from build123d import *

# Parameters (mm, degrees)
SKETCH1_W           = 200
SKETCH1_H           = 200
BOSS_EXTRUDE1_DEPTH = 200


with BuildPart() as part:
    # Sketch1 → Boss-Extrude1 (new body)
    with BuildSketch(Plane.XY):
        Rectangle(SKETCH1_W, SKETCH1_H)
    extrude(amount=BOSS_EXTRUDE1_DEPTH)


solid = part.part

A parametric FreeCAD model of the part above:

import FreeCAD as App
import Part
import Sketcher
from FreeCAD import Vector
Q = App.Units.Quantity


def add_polygon(sketch, points):
    """Adds a closed chain of lines whose ends are joined by coincident constraints."""
    first, n = sketch.GeometryCount, len(points)
    for a, b in zip(points, points[1:] + points[:1]):
        sketch.addGeometry(Part.LineSegment(App.Vector(*a, 0), App.Vector(*b, 0)), False)
    for i in range(n):
        sketch.addConstraint(Sketcher.Constraint("Coincident", first + i, 2, first + (i + 1) % n, 1))

doc = App.newDocument("Part")
params = doc.addObject("Spreadsheet::Sheet", "Params")
for row, (alias, value) in enumerate([
    ("sketch1_width", "200 mm"),
    ("pad1_length", "200 mm"),
], start=1):
    params.set(f"A{row}", alias)
    params.set(f"B{row}", "=" + value)
    params.setAlias(f"B{row}", alias)

body = doc.addObject("PartDesign::Body", "Body")

# Sketch on XY plane
sketch1 = body.newObject("Sketcher::SketchObject", "Sketch")
sketch1.AttachmentSupport = (doc.getObject("XY_Plane"), [""])
sketch1.MapMode = "FlatFace"
add_polygon(sketch1, [(-100, 100), (-100, -100), (100, -100), (100, 100)])  # lines 0-3
sketch1.addConstraint([
    Sketcher.Constraint("Vertical", 0),
    Sketcher.Constraint("Horizontal", 1),
    Sketcher.Constraint("Vertical", 2),
    Sketcher.Constraint("Horizontal", 3),
    Sketcher.Constraint("Symmetric", 0, 2, 2, 2, -1, 1),
    Sketcher.Constraint("Equal", 3, 0),
    Sketcher.Constraint("DistanceX", 1, 1, 1, 2, Q("200 mm")),
])
sketch1.setExpression("Constraints[10]", "Params.sketch1_width")
pad1 = body.newObject("PartDesign::Pad", "Pad")
pad1.Profile = sketch1
pad1.setExpression("Length", "Params.pad1_length")

doc.recompute()
